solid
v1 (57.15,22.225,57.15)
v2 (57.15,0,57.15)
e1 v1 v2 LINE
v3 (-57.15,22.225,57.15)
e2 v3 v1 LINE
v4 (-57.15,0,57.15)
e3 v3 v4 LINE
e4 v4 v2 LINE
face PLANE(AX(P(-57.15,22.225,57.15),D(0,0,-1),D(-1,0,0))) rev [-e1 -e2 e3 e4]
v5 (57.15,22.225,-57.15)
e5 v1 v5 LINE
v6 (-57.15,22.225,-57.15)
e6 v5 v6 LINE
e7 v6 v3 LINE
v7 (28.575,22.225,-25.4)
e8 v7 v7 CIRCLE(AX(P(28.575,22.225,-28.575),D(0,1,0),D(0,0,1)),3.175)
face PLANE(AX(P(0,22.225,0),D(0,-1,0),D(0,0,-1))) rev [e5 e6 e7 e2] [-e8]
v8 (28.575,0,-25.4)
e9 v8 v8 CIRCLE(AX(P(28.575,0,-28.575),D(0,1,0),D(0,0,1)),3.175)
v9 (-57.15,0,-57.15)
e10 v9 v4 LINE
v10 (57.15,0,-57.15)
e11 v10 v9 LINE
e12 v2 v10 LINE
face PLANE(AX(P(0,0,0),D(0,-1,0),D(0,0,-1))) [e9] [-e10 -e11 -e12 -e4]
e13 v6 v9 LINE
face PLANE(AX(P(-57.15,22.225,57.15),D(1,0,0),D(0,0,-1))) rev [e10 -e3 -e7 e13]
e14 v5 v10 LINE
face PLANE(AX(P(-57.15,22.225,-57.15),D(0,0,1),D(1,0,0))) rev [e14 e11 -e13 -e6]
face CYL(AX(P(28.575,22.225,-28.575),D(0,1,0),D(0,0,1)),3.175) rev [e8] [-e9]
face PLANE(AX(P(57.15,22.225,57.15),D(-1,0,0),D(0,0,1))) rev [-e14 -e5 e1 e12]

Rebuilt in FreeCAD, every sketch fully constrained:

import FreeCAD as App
import Part
import Sketcher

V = App.Vector
Q = App.Units.Quantity

doc = App.newDocument("Part")
params = doc.addObject("Spreadsheet::Sheet", "Params")
for row, (alias, value) in enumerate([
    ("sketch1_width", "4.5 in"),
    ("pad1_length", "0.875 in"),
    ("sketch2_diameter", "0.25 in"),
    ("hole_diameter", "0.25 in"),
], start=1):
    params.set(f"A{row}", alias)
    params.set(f"B{row}", "=" + value)
    params.setAlias(f"B{row}", alias)

body = doc.addObject("PartDesign::Body", "Body")

sketch1 = body.newObject("Sketcher::SketchObject", "Sketch")
sketch1.AttachmentSupport = (doc.getObject("XZ_Plane"), [""])
sketch1.MapMode = "FlatFace"
sketch1.addGeometry(Part.LineSegment(V(-57, -57, 0), V(-57, 57, 0)), False)
sketch1.addGeometry(Part.LineSegment(V(-57, 57, 0), V(57, 57, 0)), False)
sketch1.addGeometry(Part.LineSegment(V(57, 57, 0), V(57, -57, 0)), False)
sketch1.addGeometry(Part.LineSegment(V(57, -57, 0), V(-57, -57, 0)), False)
sketch1.addConstraint(Sketcher.Constraint("Coincident", 0, 2, 1, 1))
sketch1.addConstraint(Sketcher.Constraint("Coincident", 1, 2, 2, 1))
sketch1.addConstraint(Sketcher.Constraint("Coincident", 2, 2, 3, 1))
sketch1.addConstraint(Sketcher.Constraint("Coincident", 3, 2, 0, 1))
sketch1.addConstraint(Sketcher.Constraint("Vertical", 0))
sketch1.addConstraint(Sketcher.Constraint("Horizontal", 1))
sketch1.addConstraint(Sketcher.Constraint("Vertical", 2))
sketch1.addConstraint(Sketcher.Constraint("Horizontal", 3))
sketch1.addConstraint(Sketcher.Constraint("Symmetric", 0, 2, 2, 2, -1, 1))
sketch1.addConstraint(Sketcher.Constraint("Equal", 3, 0))
sketch1.addConstraint(Sketcher.Constraint("DistanceX", 1, 1, 1, 2, Q("4.5 in")))
sketch1.setExpression("Constraints[10]", "Params.sketch1_width")
pad1 = body.newObject("PartDesign::Pad", "Pad")
pad1.Profile = sketch1
pad1.setExpression("Length", "Params.pad1_length")
pad1.Reversed = True

sketch2 = body.newObject("Sketcher::SketchObject", "Sketch001")
sketch2.AttachmentSupport = (doc.getObject("XZ_Plane"), [""])
sketch2.MapMode = "FlatFace"
sketch2.AttachmentOffset = App.Placement(V(0, 0, -0.875 * 25.4), App.Rotation())
sketch2.addGeometry(Part.Circle(V(28.6, -28.6, 0), V(0, 0, 1), 3.2), False)
sketch2.addConstraint(Sketcher.Constraint("Diameter", 0, Q("0.25 in")))
sketch2.addConstraint(Sketcher.Constraint("DistanceX", -1, 1, 0, 3, Q("1.125 in")))
sketch2.addConstraint(Sketcher.Constraint("DistanceY", 0, 3, -1, 1, Q("1.125 in")))
sketch2.setExpression("Constraints[0]", "Params.sketch2_diameter")
doc.recompute()
hole = body.newObject("PartDesign::Hole", "Hole")
hole.Profile = sketch2
hole.ThreadType = "None"
hole.setExpression("Diameter", "Params.hole_diameter")
hole.DepthType = "ThroughAll"
hole.Reversed = True

doc.recompute()
